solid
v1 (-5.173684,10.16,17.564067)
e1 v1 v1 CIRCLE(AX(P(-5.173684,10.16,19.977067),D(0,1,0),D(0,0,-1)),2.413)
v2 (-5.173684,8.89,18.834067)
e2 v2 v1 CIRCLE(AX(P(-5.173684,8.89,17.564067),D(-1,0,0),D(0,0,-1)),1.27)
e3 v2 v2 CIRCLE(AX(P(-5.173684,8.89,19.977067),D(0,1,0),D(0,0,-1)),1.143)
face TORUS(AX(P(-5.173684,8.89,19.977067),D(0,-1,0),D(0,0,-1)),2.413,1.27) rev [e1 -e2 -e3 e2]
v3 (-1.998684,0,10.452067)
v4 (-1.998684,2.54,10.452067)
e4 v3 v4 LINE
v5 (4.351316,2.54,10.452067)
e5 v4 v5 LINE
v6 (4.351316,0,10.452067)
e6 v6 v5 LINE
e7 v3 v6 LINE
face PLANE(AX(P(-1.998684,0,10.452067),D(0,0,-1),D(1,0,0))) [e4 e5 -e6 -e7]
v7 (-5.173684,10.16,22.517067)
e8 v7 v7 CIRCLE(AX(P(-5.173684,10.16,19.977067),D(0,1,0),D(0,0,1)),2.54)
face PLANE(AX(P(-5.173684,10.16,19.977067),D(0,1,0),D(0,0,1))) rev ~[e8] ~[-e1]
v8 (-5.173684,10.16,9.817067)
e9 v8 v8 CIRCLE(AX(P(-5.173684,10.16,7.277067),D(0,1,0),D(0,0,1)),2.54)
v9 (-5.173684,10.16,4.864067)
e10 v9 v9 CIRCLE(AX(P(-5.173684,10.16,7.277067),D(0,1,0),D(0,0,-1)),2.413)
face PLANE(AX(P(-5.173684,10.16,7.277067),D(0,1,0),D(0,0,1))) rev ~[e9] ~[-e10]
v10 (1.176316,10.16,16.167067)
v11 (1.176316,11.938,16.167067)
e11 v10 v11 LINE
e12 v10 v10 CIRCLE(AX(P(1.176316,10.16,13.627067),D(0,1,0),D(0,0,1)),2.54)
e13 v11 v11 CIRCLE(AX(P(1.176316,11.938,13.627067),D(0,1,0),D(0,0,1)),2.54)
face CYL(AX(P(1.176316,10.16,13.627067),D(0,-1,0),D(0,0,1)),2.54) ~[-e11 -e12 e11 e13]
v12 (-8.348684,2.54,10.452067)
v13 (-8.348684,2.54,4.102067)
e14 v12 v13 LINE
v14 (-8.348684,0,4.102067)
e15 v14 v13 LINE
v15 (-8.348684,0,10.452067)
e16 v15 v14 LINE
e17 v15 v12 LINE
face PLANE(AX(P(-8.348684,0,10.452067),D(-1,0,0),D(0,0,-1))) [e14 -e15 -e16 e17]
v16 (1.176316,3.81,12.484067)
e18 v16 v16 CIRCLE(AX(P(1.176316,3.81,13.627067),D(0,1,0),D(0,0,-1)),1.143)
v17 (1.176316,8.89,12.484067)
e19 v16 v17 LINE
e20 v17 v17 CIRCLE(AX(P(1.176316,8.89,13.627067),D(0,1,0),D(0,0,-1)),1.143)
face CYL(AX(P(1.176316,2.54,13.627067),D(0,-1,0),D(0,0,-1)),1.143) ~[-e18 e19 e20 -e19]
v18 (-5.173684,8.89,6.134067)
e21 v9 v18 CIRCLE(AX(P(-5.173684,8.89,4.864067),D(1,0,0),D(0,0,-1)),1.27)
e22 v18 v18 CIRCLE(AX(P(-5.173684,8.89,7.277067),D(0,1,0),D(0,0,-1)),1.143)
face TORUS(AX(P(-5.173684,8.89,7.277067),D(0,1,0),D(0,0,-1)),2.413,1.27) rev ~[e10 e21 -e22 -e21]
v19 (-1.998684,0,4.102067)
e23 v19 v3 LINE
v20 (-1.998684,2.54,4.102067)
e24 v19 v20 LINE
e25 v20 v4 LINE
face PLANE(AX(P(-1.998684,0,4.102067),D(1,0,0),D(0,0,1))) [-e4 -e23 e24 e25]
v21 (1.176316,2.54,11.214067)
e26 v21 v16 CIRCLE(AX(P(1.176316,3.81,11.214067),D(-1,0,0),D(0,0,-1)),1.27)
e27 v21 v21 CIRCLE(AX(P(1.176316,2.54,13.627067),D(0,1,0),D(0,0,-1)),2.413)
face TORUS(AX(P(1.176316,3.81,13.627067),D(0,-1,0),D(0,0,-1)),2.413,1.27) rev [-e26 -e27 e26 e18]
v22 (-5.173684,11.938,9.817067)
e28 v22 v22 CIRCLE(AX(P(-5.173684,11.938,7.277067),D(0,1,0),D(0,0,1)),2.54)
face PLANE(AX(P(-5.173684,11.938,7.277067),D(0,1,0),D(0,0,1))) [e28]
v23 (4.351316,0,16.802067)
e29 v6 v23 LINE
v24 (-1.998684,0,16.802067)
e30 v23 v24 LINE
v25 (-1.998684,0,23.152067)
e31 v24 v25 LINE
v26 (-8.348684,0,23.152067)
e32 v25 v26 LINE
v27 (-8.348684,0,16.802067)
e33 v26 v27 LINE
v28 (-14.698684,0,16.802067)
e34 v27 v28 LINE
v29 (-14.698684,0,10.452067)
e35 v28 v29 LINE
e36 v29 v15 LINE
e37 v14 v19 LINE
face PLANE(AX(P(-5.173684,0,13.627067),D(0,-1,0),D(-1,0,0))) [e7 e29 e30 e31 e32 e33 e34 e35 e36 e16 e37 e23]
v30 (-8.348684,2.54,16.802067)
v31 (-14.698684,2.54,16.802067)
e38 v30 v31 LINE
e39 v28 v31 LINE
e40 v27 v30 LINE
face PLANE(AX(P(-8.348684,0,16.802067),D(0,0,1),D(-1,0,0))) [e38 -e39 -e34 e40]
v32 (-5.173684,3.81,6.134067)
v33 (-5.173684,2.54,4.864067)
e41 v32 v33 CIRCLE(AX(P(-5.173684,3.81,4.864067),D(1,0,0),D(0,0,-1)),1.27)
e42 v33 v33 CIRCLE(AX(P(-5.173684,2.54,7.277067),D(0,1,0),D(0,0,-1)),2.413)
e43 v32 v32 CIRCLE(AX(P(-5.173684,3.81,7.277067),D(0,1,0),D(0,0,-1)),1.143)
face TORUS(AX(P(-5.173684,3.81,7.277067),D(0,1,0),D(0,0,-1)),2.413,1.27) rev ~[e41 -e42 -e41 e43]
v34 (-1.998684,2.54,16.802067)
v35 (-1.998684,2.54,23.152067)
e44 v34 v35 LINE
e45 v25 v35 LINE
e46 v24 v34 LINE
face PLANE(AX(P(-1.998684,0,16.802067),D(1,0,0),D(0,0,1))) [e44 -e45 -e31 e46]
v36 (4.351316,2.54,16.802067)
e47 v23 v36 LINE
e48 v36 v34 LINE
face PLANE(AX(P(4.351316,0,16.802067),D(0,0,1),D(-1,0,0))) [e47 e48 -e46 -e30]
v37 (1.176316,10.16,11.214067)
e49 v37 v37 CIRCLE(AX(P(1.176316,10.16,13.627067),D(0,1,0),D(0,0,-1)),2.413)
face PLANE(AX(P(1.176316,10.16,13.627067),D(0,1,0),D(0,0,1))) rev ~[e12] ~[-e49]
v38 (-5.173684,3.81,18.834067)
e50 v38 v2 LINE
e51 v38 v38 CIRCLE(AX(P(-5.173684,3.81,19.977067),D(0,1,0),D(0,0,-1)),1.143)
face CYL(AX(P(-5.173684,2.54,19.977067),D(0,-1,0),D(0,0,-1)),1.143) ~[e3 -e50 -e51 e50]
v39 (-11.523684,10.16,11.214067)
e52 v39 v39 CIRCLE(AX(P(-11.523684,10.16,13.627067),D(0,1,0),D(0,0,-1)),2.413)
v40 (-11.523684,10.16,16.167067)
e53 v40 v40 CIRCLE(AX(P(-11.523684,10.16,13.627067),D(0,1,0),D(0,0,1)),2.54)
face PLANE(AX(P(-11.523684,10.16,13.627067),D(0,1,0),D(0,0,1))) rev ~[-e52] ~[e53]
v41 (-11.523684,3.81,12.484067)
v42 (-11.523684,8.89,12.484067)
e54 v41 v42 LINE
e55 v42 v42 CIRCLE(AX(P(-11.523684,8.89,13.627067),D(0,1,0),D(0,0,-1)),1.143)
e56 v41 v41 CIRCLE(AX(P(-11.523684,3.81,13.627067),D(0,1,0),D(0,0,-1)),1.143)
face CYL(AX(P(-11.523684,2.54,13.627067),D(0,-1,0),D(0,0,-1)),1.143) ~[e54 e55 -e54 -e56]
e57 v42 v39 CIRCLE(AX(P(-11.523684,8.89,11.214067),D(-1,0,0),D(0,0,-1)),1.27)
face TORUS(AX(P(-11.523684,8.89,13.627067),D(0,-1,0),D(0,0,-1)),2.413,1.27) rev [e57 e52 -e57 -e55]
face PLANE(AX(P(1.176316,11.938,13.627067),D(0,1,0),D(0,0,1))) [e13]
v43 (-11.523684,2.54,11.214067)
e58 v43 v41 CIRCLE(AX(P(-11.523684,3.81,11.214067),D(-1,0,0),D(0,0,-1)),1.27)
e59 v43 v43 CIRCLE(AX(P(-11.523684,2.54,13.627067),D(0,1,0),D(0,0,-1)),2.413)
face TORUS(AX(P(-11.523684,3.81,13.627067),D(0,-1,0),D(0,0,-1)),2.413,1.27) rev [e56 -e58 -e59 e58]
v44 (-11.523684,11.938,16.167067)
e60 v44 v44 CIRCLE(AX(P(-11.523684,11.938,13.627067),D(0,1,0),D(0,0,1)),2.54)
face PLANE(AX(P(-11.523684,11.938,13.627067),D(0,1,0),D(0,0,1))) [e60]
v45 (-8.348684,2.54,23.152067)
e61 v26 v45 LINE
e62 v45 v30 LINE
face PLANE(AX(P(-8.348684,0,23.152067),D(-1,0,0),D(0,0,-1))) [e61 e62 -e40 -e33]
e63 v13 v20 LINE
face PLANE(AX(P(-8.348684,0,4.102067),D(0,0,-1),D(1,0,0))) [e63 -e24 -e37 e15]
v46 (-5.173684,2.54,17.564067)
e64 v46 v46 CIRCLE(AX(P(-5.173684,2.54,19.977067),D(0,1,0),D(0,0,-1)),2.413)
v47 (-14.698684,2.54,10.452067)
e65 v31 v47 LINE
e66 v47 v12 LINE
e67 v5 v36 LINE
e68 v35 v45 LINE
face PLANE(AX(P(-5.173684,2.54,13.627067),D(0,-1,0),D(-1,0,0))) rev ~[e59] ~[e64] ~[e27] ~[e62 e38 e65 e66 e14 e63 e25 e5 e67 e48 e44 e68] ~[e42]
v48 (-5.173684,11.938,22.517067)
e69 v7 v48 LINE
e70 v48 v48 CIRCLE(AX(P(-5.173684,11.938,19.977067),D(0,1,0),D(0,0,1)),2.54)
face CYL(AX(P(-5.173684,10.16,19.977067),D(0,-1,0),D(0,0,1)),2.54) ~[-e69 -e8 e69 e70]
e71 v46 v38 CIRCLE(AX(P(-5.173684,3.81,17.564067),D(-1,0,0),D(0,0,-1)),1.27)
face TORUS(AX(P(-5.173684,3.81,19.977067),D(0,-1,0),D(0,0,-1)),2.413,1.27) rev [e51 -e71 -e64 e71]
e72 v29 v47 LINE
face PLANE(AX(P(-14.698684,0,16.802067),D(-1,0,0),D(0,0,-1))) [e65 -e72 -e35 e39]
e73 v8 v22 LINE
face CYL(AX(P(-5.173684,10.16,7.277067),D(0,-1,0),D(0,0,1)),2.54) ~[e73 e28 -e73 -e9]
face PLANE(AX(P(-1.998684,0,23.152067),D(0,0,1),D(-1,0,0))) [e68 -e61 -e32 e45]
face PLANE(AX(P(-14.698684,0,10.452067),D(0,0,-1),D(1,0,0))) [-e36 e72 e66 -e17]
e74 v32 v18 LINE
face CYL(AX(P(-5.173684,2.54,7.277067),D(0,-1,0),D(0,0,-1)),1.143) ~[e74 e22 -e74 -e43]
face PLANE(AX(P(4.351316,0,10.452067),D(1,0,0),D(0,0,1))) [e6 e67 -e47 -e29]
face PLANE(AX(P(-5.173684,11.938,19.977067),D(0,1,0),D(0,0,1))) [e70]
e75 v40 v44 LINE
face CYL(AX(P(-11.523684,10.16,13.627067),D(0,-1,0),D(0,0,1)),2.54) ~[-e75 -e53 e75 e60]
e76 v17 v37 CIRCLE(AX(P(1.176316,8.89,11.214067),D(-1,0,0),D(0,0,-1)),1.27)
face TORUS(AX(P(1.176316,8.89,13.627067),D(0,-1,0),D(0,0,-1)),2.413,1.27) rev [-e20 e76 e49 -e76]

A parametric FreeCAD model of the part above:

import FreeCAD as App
import Part
import Sketcher

V = App.Vector
Q = App.Units.Quantity


def edges_at(feature, points):
    """Names of the edges that pass closest to the given points."""
    edges = feature.Shape.Edges
    near = lambda p: min(range(len(edges)), key=lambda i: edges[i].distToShape(Part.Vertex(*p))[0])
    return sorted({f"Edge{near(p) + 1}" for p in points})

doc = App.newDocument("Part")
body = doc.addObject("PartDesign::Body", "Body")

# Sketch on XZ plane
sketch1 = body.newObject("Sketcher::SketchObject", "Sketch")
sketch1.AttachmentSupport = (doc.getObject("XZ_Plane"), [""])
sketch1.MapMode = "FlatFace"
sketch1.addGeometry(Part.LineSegment(V(-8.348684, 4.102067, 0), V(-8.348684, 10.452067, 0)), False)
sketch1.addGeometry(Part.LineSegment(V(-8.348684, 10.452067, 0), V(-14.698684, 10.452067, 0)), False)
sketch1.addGeometry(Part.LineSegment(V(-14.698684, 10.452067, 0), V(-14.698684, 16.802067, 0)), False)
sketch1.addGeometry(Part.LineSegment(V(-14.698684, 16.802067, 0), V(-8.348684, 16.802067, 0)), False)
sketch1.addGeometry(Part.LineSegment(V(-8.348684, 16.802067, 0), V(-8.348684, 23.152067, 0)), False)
sketch1.addGeometry(Part.LineSegment(V(-8.348684, 23.152067, 0), V(-1.998684, 23.152067, 0)), False)
sketch1.addGeometry(Part.LineSegment(V(-1.998684, 23.152067, 0), V(-1.998684, 16.802067, 0)), False)
sketch1.addGeometry(Part.LineSegment(V(-1.998684, 16.802067, 0), V(4.351316, 16.802067, 0)), False)
sketch1.addGeometry(Part.LineSegment(V(4.351316, 16.802067, 0), V(4.351316, 10.452067, 0)), False)
sketch1.addGeometry(Part.LineSegment(V(4.351316, 10.452067, 0), V(-1.998684, 10.452067, 0)), False)
sketch1.addGeometry(Part.LineSegment(V(-1.998684, 10.452067, 0), V(-1.998684, 4.102067, 0)), False)
sketch1.addGeometry(Part.LineSegment(V(-1.998684, 4.102067, 0), V(-8.348684, 4.102067, 0)), False)
sketch1.addConstraint(Sketcher.Constraint("Coincident", 0, 2, 1, 1))
sketch1.addConstraint(Sketcher.Constraint("Coincident", 1, 2, 2, 1))
sketch1.addConstraint(Sketcher.Constraint("Coincident", 2, 2, 3, 1))
sketch1.addConstraint(Sketcher.Constraint("Coincident", 3, 2, 4, 1))
sketch1.addConstraint(Sketcher.Constraint("Coincident", 4, 2, 5, 1))
sketch1.addConstraint(Sketcher.Constraint("Coincident", 5, 2, 6, 1))
sketch1.addConstraint(Sketcher.Constraint("Coincident", 6, 2, 7, 1))
sketch1.addConstraint(Sketcher.Constraint("Coincident", 7, 2, 8, 1))
sketch1.addConstraint(Sketcher.Constraint("Coincident", 8, 2, 9, 1))
sketch1.addConstraint(Sketcher.Constraint("Coincident", 9, 2, 10, 1))
sketch1.addConstraint(Sketcher.Constraint("Coincident", 10, 2, 11, 1))
sketch1.addConstraint(Sketcher.Constraint("Coincident", 11, 2, 0, 1))
sketch1.addConstraint(Sketcher.Constraint("Vertical", 0))
sketch1.addConstraint(Sketcher.Constraint("Horizontal", 1))
sketch1.addConstraint(Sketcher.Constraint("Vertical", 2))
sketch1.addConstraint(Sketcher.Constraint("Horizontal", 3))
sketch1.addConstraint(Sketcher.Constraint("Vertical", 4))
sketch1.addConstraint(Sketcher.Constraint("Horizontal", 5))
sketch1.addConstraint(Sketcher.Constraint("Vertical", 6))
sketch1.addConstraint(Sketcher.Constraint("Horizontal", 7))
sketch1.addConstraint(Sketcher.Constraint("Vertical", 8))
sketch1.addConstraint(Sketcher.Constraint("Horizontal", 9))
sketch1.addConstraint(Sketcher.Constraint("Vertical", 10))
sketch1.addConstraint(Sketcher.Constraint("Horizontal", 11))
sketch1.addConstraint(Sketcher.Constraint("Horizontal", 3, 2, 6, 2))
sketch1.addConstraint(Sketcher.Constraint("Horizontal", 1, 2, 8, 2))
sketch1.addConstraint(Sketcher.Constraint("Vertical", 0, 2, 3, 2))
sketch1.addConstraint(Sketcher.Constraint("Vertical", 6, 2, 9, 2))
sketch1.addConstraint(Sketcher.Constraint("Equal", 3, 5))
sketch1.addConstraint(Sketcher.Constraint("Equal", 5, 7))
sketch1.addConstraint(Sketcher.Constraint("Equal", 11, 0))
sketch1.addConstraint(Sketcher.Constraint("Equal", 0, 2))
sketch1.addConstraint(Sketcher.Constraint("Equal", 2, 4))
sketch1.addConstraint(Sketcher.Constraint("DistanceX", 1, 2, 1, 1, Q("0.25 in")))
sketch1.addConstraint(Sketcher.Constraint("DistanceX", 0, 2, -1, 1, Q("8.348684 mm")))
sketch1.addConstraint(Sketcher.Constraint("DistanceY", -1, 1, 0, 2, Q("10.452067 mm")))
pad1 = body.newObject("PartDesign::Pad", "Pad")
pad1.Profile = sketch1
pad1.Length = Q("0.1 in")
pad1.Reversed = True

# Sketch on XZ plane
sketch2 = body.newObject("Sketcher::SketchObject", "Sketch001")
sketch2.AttachmentSupport = (doc.getObject("XZ_Plane"), [""])
sketch2.MapMode = "FlatFace"
sketch2.AttachmentOffset = App.Placement(V(0, 0, -0.1 * 25.4), App.Rotation())
sketch2.addGeometry(Part.Circle(V(-5.173684, 7.277067, 0), V(0, 0, 1), 1.143), False)
sketch2.addGeometry(Part.Circle(V(1.176316, 13.627067, 0), V(0, 0, 1), 1.143), False)
sketch2.addGeometry(Part.Circle(V(-5.173684, 19.977067, 0), V(0, 0, 1), 1.143), False)
sketch2.addGeometry(Part.Circle(V(-11.523684, 13.627067, 0), V(0, 0, 1), 1.143), False)
sketch2.addConstraint(Sketcher.Constraint("Equal", 0, 1))
sketch2.addConstraint(Sketcher.Constraint("Equal", 1, 2))
sketch2.addConstraint(Sketcher.Constraint("Equal", 2, 3))
sketch2.addConstraint(Sketcher.Constraint("Horizontal", 1, 3, 3, 3))
sketch2.addConstraint(Sketcher.Constraint("Vertical", 0, 3, 2, 3))
sketch2.addConstraint(Sketcher.Constraint("Diameter", 0, Q("0.09 in")))
sketch2.addConstraint(Sketcher.Constraint("DistanceY", 0, 3, 2, 3, Q("0.5 in")))
sketch2.addConstraint(Sketcher.Constraint("DistanceX", 3, 3, 1, 3, Q("0.5 in")))
sketch2.addConstraint(Sketcher.Constraint("DistanceX", 0, 3, 1, 3, Q("0.25 in")))
sketch2.addConstraint(Sketcher.Constraint("DistanceY", 0, 3, 1, 3, Q("0.25 in")))
sketch2.addConstraint(Sketcher.Constraint("DistanceX", 0, 3, -1, 1, Q("5.173684 mm")))
sketch2.addConstraint(Sketcher.Constraint("DistanceY", -1, 1, 0, 3, Q("7.277067 mm")))
pad2 = body.newObject("PartDesign::Pad", "Pad001")
pad2.Profile = sketch2
pad2.Length = Q("0.3 in")
pad2.Reversed = True

# Sketch on XZ plane
sketch3 = body.newObject("Sketcher::SketchObject", "Sketch002")
sketch3.AttachmentSupport = (doc.getObject("XZ_Plane"), [""])
sketch3.MapMode = "FlatFace"
sketch3.AttachmentOffset = App.Placement(V(0, 0, -0.4 * 25.4), App.Rotation())
sketch3.addGeometry(Part.Circle(V(-5.173684, 7.277067, 0), V(0, 0, 1), 2.54), False)
sketch3.addGeometry(Part.Circle(V(-11.523684, 13.627067, 0), V(0, 0, 1), 2.54), False)
sketch3.addGeometry(Part.Circle(V(-5.173684, 19.977067, 0), V(0, 0, 1), 2.54), False)
sketch3.addGeometry(Part.Circle(V(1.176316, 13.627067, 0), V(0, 0, 1), 2.54), False)
sketch3.addConstraint(Sketcher.Constraint("Equal", 0, 1))
sketch3.addConstraint(Sketcher.Constraint("Equal", 1, 2))
sketch3.addConstraint(Sketcher.Constraint("Equal", 2, 3))
sketch3.addConstraint(Sketcher.Constraint("Horizontal", 1, 3, 3, 3))
sketch3.addConstraint(Sketcher.Constraint("Vertical", 0, 3, 2, 3))
sketch3.addConstraint(Sketcher.Constraint("Diameter", 0, Q("0.2 in")))
sketch3.addConstraint(Sketcher.Constraint("DistanceY", 0, 3, 2, 3, Q("0.5 in")))
sketch3.addConstraint(Sketcher.Constraint("DistanceX", 1, 3, 3, 3, Q("0.5 in")))
sketch3.addConstraint(Sketcher.Constraint("DistanceX", 1, 3, 0, 3, Q("0.25 in")))
sketch3.addConstraint(Sketcher.Constraint("DistanceY", 0, 3, 1, 3, Q("0.25 in")))
sketch3.addConstraint(Sketcher.Constraint("DistanceX", 0, 3, -1, 1, Q("5.173684 mm")))
sketch3.addConstraint(Sketcher.Constraint("DistanceY", -1, 1, 0, 3, Q("7.277067 mm")))
pad3 = body.newObject("PartDesign::Pad", "Pad002")
pad3.Profile = sketch3
pad3.Length = Q("0.07 in")
pad3.Reversed = True
doc.recompute()

fillet = body.newObject("PartDesign::Fillet", "Fillet")
fillet.Base = (pad3, edges_at(pad3, [
    (-5.174, 2.54, 8.42),
    (-5.174, 10.16, 8.42),
    (1.176, 2.54, 14.77),
    (1.176, 10.16, 14.77),
    (-5.174, 2.54, 21.12),
    (-5.174, 10.16, 21.12),
    (-11.524, 2.54, 14.77),
    (-11.524, 10.16, 14.77),
]))
fillet.Radius = Q("0.05 in")

doc.recompute()
